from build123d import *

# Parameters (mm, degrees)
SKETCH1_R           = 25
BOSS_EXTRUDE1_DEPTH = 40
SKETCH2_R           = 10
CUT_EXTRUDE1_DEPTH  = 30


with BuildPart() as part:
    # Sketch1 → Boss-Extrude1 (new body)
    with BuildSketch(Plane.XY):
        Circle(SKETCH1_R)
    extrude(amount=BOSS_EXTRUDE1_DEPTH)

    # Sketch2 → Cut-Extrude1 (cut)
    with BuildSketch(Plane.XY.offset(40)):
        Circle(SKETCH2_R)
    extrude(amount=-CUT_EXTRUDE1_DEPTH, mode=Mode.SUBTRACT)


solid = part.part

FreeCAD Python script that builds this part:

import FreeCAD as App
import Part
import Sketcher
from FreeCAD import Vector

doc = App.newDocument("Part")
body = doc.addObject("PartDesign::Body", "Body")

# Sketch on XY plane
sketch1 = doc.addObject("Sketcher::SketchObject", "Sketch")
body.addObject(sketch1)
sketch1.AttachmentSupport = (doc.XY_Plane, [""])
sketch1.MapMode = "FlatFace"
sketch1.addGeometry(Part.Circle(Vector(0, 0, 0), Vector(0, 0, 1), 25), False)
sketch1.addConstraint(Sketcher.Constraint("Coincident", 0, 3, -1, 1))
sketch1.addConstraint(Sketcher.Constraint("Diameter", 0, 50.0))
pad1 = doc.addObject("PartDesign::Pad", "Pad")
body.addObject(pad1)
pad1.Profile = sketch1
pad1.Length = 40

# Sketch on XY plane
sketch2 = doc.addObject("Sketcher::SketchObject", "Sketch001")
body.addObject(sketch2)
sketch2.AttachmentSupport = (doc.XY_Plane, [""])
sketch2.MapMode = "FlatFace"
sketch2.AttachmentOffset = App.Placement(Vector(0, 0, 40), App.Rotation())
sketch2.addGeometry(Part.Circle(Vector(0, 0, 0), Vector(0, 0, 1), 10), False)
sketch2.addConstraint(Sketcher.Constraint("Coincident", 0, 3, -1, 1))
sketch2.addConstraint(Sketcher.Constraint("Diameter", 0, 20.0))
pocket1 = doc.addObject("PartDesign::Pocket", "Pocket")
body.addObject(pocket1)
pocket1.Profile = sketch2
pocket1.Length = 30

doc.recompute()
